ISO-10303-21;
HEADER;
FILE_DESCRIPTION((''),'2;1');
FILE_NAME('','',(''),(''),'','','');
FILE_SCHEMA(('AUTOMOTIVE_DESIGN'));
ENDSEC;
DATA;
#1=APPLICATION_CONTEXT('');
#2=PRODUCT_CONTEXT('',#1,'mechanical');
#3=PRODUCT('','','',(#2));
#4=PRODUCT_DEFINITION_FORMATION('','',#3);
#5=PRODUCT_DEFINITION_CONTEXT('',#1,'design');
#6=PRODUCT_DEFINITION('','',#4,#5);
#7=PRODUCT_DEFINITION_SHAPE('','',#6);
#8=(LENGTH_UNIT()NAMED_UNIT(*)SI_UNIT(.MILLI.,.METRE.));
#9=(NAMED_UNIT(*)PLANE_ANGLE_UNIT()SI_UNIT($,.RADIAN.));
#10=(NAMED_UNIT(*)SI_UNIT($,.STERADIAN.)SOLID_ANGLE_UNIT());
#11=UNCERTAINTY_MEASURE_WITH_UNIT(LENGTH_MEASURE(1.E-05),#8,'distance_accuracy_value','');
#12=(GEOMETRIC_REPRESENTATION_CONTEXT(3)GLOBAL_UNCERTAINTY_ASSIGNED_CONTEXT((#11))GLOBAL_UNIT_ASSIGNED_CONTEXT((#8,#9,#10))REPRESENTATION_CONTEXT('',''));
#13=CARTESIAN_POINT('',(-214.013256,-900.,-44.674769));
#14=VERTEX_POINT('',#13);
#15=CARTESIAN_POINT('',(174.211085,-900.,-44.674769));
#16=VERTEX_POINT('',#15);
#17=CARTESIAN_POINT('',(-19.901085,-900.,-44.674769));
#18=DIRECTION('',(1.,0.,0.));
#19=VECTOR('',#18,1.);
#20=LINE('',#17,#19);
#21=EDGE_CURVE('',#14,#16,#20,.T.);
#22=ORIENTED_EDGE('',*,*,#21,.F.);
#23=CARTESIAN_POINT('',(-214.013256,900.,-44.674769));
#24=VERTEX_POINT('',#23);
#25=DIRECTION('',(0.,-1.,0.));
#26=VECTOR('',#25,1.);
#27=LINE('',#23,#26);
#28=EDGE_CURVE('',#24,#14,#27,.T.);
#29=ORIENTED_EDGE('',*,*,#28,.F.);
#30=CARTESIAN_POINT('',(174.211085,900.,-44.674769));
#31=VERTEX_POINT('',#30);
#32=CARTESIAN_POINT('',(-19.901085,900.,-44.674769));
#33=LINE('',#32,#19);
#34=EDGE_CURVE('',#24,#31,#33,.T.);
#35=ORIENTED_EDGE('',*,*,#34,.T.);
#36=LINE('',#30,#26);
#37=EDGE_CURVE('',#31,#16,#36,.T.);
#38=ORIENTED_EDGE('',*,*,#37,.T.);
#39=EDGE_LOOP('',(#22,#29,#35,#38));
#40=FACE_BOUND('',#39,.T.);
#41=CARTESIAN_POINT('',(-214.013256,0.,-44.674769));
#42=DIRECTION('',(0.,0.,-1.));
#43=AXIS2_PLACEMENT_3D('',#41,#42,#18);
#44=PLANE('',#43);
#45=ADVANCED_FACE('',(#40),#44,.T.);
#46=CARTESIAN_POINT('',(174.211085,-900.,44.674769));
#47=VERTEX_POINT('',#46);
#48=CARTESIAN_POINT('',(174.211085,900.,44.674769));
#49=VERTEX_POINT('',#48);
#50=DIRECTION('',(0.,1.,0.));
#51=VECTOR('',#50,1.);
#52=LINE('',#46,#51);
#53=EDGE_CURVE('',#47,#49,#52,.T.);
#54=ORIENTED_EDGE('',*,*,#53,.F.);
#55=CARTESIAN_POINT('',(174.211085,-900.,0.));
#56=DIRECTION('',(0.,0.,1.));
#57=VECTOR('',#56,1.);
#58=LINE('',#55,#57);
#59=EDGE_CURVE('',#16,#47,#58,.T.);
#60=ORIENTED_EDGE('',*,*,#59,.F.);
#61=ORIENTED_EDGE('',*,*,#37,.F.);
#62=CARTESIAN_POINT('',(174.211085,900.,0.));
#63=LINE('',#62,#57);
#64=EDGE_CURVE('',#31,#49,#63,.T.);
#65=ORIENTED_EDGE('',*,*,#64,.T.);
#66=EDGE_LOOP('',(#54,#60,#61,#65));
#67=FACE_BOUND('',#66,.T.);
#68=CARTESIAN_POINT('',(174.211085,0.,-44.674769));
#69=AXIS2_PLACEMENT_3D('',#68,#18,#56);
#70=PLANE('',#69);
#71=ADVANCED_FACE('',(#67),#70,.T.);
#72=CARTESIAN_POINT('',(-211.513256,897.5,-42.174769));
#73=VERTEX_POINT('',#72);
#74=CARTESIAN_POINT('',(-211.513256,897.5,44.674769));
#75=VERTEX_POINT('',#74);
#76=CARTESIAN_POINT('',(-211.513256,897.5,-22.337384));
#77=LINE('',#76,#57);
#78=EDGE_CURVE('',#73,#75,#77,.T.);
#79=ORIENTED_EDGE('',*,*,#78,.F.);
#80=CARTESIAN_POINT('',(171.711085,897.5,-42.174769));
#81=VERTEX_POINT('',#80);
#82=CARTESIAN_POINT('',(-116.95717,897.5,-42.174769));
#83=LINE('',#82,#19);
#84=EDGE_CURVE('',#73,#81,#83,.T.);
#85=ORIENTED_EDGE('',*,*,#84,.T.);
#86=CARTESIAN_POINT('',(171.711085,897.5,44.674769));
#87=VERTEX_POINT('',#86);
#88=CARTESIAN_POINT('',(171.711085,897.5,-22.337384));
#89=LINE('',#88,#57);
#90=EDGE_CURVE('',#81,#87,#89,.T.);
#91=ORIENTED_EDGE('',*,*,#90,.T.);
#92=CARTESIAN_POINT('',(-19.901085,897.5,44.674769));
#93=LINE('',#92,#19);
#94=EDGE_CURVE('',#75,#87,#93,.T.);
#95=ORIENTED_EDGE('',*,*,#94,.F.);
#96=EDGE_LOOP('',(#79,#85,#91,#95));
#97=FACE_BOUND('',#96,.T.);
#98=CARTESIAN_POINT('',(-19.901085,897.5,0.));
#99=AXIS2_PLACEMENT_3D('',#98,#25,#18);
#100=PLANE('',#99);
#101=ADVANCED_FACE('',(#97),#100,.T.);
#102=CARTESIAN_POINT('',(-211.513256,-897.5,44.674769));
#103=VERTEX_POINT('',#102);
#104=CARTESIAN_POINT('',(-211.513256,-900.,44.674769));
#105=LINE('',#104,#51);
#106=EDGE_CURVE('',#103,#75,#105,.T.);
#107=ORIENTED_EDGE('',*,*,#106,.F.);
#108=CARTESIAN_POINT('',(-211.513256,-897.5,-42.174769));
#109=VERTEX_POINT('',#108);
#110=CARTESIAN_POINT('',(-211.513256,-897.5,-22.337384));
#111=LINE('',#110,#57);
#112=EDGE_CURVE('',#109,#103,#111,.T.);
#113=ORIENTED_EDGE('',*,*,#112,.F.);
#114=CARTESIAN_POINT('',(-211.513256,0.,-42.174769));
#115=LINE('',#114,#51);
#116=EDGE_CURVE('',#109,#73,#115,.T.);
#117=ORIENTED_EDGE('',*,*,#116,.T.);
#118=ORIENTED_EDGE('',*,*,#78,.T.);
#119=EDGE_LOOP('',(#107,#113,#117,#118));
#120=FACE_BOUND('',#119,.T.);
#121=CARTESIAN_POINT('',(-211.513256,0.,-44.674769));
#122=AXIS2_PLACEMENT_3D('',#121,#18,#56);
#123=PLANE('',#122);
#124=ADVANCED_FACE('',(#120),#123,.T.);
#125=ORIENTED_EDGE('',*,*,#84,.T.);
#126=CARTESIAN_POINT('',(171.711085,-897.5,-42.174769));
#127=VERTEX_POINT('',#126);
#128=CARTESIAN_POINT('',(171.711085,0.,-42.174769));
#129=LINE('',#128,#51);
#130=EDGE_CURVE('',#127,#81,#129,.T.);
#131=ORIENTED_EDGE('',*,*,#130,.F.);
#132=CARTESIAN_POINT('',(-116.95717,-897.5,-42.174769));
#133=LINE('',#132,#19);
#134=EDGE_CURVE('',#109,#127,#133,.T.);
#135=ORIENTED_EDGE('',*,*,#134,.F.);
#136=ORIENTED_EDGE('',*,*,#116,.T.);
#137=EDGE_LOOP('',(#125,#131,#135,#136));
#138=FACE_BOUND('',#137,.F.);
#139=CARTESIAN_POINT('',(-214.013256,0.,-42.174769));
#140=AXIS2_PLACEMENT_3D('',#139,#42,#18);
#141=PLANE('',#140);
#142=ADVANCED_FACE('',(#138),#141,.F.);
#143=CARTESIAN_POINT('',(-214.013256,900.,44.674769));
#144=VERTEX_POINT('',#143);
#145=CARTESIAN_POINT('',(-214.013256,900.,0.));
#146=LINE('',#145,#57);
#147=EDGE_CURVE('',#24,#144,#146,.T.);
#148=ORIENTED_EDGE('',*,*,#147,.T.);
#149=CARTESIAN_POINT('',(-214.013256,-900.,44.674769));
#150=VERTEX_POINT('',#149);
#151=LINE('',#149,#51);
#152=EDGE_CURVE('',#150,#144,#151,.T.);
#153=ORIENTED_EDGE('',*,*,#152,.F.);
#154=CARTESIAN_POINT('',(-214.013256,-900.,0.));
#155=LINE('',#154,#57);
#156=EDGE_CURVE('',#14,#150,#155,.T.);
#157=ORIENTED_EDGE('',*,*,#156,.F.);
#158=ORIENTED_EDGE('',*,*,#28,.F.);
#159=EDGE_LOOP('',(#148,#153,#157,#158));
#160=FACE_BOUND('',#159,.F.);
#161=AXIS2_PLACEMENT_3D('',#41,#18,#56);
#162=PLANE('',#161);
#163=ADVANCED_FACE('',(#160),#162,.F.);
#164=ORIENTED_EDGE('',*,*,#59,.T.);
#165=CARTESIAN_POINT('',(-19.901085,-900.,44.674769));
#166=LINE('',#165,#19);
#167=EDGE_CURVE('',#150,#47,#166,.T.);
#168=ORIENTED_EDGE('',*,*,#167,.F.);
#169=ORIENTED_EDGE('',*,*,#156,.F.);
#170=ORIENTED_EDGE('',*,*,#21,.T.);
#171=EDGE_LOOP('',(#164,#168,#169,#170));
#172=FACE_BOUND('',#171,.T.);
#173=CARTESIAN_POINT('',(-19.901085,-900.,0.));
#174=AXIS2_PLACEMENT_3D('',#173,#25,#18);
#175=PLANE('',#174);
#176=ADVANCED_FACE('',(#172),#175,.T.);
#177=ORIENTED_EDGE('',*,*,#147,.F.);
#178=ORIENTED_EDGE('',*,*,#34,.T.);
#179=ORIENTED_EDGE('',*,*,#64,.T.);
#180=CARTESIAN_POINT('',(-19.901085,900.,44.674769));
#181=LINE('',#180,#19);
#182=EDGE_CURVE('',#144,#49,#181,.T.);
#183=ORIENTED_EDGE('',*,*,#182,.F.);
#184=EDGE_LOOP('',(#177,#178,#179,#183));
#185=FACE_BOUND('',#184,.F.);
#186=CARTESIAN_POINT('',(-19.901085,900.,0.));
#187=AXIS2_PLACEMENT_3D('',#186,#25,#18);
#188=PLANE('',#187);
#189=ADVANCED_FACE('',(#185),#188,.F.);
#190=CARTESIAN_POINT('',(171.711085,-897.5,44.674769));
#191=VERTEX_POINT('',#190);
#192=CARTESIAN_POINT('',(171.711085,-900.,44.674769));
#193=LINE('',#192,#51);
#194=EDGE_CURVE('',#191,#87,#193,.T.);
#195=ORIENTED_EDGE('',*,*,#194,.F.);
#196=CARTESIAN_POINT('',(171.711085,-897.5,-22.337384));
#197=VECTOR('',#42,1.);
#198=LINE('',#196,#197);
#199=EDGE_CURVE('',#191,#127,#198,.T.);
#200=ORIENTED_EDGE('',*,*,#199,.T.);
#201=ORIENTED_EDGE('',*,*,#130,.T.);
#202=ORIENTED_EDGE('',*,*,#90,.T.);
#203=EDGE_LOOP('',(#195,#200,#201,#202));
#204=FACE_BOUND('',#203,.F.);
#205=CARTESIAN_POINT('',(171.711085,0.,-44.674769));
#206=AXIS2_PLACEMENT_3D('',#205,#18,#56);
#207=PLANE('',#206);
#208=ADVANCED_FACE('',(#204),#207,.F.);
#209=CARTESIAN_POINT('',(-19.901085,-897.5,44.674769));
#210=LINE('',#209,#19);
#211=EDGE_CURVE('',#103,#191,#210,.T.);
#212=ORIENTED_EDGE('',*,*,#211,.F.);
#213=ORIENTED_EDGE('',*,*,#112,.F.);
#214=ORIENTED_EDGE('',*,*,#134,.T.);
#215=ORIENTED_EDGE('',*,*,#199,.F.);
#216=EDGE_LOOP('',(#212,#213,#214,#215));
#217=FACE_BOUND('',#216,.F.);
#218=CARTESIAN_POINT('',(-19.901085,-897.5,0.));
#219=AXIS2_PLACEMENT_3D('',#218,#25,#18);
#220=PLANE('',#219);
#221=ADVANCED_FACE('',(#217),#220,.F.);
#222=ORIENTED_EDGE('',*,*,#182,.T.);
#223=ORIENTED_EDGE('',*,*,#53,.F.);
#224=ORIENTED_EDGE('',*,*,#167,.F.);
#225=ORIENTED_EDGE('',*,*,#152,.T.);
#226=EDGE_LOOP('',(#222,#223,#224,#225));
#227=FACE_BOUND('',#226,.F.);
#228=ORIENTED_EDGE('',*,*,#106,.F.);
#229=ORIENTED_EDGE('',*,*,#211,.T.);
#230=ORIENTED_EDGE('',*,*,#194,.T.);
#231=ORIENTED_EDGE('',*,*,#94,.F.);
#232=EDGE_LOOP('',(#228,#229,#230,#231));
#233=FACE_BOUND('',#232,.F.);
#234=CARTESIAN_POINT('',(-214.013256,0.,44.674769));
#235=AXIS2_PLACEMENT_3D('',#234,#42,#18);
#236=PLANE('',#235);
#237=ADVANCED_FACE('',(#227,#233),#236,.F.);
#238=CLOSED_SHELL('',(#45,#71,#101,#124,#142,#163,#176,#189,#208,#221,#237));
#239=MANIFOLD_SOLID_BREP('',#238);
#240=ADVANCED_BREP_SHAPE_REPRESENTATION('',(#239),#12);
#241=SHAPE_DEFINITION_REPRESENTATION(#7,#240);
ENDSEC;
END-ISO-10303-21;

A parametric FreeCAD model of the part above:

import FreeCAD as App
import Part
import Sketcher
from FreeCAD import Vector
Q = App.Units.Quantity


def faces_at(feature, points):
    """Names of the faces that lie closest to the given points."""
    faces = feature.Shape.Faces
    near = lambda p: min(range(len(faces)), key=lambda i: faces[i].distToShape(Part.Vertex(*p))[0])
    return sorted({f"Face{near(p) + 1}" for p in points})


def add_polygon(sketch, points):
    """Adds a closed chain of lines whose ends are joined by coincident constraints."""
    first, n = sketch.GeometryCount, len(points)
    for a, b in zip(points, points[1:] + points[:1]):
        sketch.addGeometry(Part.LineSegment(App.Vector(*a, 0), App.Vector(*b, 0)), False)
    for i in range(n):
        sketch.addConstraint(Sketcher.Constraint("Coincident", first + i, 2, first + (i + 1) % n, 1))

doc = App.newDocument("Part")
params = doc.addObject("Spreadsheet::Sheet", "Params")
for row, (alias, value) in enumerate([
    ("pad1_length", "1800 mm"),
    ("thickness_wall", "2.5 mm"),
], start=1):
    params.set(f"A{row}", alias)
    params.set(f"B{row}", "=" + value)
    params.setAlias(f"B{row}", alias)

body = doc.addObject("PartDesign::Body", "Body")

sketch1 = body.newObject("Sketcher::SketchObject", "Sketch")
sketch1.AttachmentSupport = (doc.getObject("XZ_Plane"), [""])
sketch1.MapMode = "FlatFace"
add_polygon(sketch1, [(-214.013256, 44.674769), (-214.013256, -44.674769), (174.211085, -44.674769), (174.211085, 44.674769)])
sketch1.addConstraint(Sketcher.Constraint("Vertical", 0))
sketch1.addConstraint(Sketcher.Constraint("Horizontal", 1))
sketch1.addConstraint(Sketcher.Constraint("Vertical", 2))
sketch1.addConstraint(Sketcher.Constraint("Horizontal", 3))
sketch1.addConstraint(Sketcher.Constraint("DistanceX", 1, 1, 1, 2, Q("388.224341 mm")))
sketch1.addConstraint(Sketcher.Constraint("DistanceY", 0, 2, 0, 1, Q("89.349538 mm")))
sketch1.addConstraint(Sketcher.Constraint("DistanceY", 0, 2, -1, 1, Q("44.674769 mm")))
sketch1.addConstraint(Sketcher.Constraint("DistanceX", 0, 2, -1, 1, Q("214.013256 mm")))
pad1 = body.newObject("PartDesign::Pad", "Pad")
pad1.Profile = sketch1
pad1.setExpression("Length", "Params.pad1_length")
pad1.Midplane = True
doc.recompute()

thickness = body.newObject("PartDesign::Thickness", "Thickness")
thickness.Base = (pad1, faces_at(pad1, [(-19.901, 0, 44.675)]))
thickness.setExpression("Value", "Params.thickness_wall")
thickness.Reversed = True
thickness.Join = "Arc"

doc.recompute()
